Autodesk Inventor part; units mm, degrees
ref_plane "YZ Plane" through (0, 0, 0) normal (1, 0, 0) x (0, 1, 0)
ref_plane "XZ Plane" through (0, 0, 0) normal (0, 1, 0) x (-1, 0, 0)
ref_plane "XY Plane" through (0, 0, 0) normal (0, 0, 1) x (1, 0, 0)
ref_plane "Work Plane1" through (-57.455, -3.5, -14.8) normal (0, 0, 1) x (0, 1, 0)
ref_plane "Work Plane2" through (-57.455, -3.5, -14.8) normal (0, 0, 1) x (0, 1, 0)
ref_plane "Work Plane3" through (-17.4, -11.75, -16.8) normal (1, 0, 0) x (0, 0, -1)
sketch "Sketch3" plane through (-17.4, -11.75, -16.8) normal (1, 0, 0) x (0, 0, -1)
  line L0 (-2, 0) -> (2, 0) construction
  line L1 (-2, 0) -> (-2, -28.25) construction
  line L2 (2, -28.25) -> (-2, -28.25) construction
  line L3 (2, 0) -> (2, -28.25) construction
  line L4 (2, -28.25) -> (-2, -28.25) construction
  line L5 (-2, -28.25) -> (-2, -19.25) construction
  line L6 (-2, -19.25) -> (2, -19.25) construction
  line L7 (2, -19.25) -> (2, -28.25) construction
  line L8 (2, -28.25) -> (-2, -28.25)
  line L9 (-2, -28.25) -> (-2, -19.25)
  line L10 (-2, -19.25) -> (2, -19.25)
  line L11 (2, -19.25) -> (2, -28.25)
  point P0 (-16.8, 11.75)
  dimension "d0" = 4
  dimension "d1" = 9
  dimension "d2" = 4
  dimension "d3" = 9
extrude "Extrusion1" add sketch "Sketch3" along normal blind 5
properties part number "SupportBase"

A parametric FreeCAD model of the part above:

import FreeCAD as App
import Part
import Sketcher

V = App.Vector
Q = App.Units.Quantity

doc = App.newDocument("Part")
params = doc.addObject("Spreadsheet::Sheet", "Params")
for row, (alias, value) in enumerate([
    ("sketch1_width", "9 mm"),
    ("sketch1_height", "4 mm"),
    ("pad1_length", "5 mm"),
], start=1):
    params.set(f"A{row}", alias)
    params.set(f"B{row}", "=" + value)
    params.setAlias(f"B{row}", alias)

body = doc.addObject("PartDesign::Body", "Body")

# Sketch on YZ plane
sketch1 = body.newObject("Sketcher::SketchObject", "Sketch")
sketch1.AttachmentSupport = (doc.getObject("YZ_Plane"), [""])
sketch1.MapMode = "FlatFace"
sketch1.AttachmentOffset = App.Placement(V(0, 0, -17.4), App.Rotation())
sketch1.addGeometry([
    Part.LineSegment(V(-40, -14.8, 0), V(-40, -18.8, 0)),
    Part.LineSegment(V(-40, -18.8, 0), V(-31, -18.8, 0)),
    Part.LineSegment(V(-31, -18.8, 0), V(-31, -14.8, 0)),
    Part.LineSegment(V(-31, -14.8, 0), V(-40, -14.8, 0)),
], False)
sketch1.addConstraint([
    Sketcher.Constraint("Coincident", 0, 2, 1, 1),
    Sketcher.Constraint("Coincident", 1, 2, 2, 1),
    Sketcher.Constraint("Coincident", 2, 2, 3, 1),
    Sketcher.Constraint("Coincident", 3, 2, 0, 1),
    Sketcher.Constraint("Vertical", 0),
    Sketcher.Constraint("Horizontal", 1),
    Sketcher.Constraint("Vertical", 2),
    Sketcher.Constraint("Horizontal", 3),
    Sketcher.Constraint("DistanceX", 1, 1, 1, 2, Q("9 mm")),
    Sketcher.Constraint("DistanceY", 0, 2, 0, 1, Q("4 mm")),
    Sketcher.Constraint("DistanceX", 0, 2, -1, 1, Q("40 mm")),
    Sketcher.Constraint("DistanceY", 0, 2, -1, 1, Q("18.8 mm")),
])
sketch1.setExpression("Constraints[8]", "Params.sketch1_width")
sketch1.setExpression("Constraints[9]", "Params.sketch1_height")
pad1 = body.newObject("PartDesign::Pad", "Pad")
pad1.Profile = sketch1
pad1.setExpression("Length", "Params.pad1_length")

doc.recompute()
